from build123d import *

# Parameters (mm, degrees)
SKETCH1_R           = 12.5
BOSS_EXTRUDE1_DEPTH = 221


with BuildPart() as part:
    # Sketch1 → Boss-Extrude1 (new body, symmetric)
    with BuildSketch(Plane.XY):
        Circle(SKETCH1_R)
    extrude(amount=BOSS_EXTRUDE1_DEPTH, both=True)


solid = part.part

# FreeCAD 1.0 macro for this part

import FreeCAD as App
import Part
import Sketcher
from FreeCAD import Vector
Q = App.Units.Quantity

doc = App.newDocument("Part")
body = doc.addObject("PartDesign::Body", "Body")

sketch1 = body.newObject("Sketcher::SketchObject", "Sketch")
sketch1.AttachmentSupport = (doc.getObject("XY_Plane"), [""])
sketch1.MapMode = "FlatFace"
sketch1.addGeometry(Part.Circle(Vector(0, 0, 0), Vector(0, 0, 1), 12), False)
sketch1.addConstraint(Sketcher.Constraint("Coincident", 0, 3, -1, 1))
sketch1.addConstraint(Sketcher.Constraint("Diameter", 0, Q("25 mm")))
pad1 = body.newObject("PartDesign::Pad", "Pad")
pad1.Profile = sketch1
pad1.Length = 442
pad1.Midplane = True

doc.recompute()
